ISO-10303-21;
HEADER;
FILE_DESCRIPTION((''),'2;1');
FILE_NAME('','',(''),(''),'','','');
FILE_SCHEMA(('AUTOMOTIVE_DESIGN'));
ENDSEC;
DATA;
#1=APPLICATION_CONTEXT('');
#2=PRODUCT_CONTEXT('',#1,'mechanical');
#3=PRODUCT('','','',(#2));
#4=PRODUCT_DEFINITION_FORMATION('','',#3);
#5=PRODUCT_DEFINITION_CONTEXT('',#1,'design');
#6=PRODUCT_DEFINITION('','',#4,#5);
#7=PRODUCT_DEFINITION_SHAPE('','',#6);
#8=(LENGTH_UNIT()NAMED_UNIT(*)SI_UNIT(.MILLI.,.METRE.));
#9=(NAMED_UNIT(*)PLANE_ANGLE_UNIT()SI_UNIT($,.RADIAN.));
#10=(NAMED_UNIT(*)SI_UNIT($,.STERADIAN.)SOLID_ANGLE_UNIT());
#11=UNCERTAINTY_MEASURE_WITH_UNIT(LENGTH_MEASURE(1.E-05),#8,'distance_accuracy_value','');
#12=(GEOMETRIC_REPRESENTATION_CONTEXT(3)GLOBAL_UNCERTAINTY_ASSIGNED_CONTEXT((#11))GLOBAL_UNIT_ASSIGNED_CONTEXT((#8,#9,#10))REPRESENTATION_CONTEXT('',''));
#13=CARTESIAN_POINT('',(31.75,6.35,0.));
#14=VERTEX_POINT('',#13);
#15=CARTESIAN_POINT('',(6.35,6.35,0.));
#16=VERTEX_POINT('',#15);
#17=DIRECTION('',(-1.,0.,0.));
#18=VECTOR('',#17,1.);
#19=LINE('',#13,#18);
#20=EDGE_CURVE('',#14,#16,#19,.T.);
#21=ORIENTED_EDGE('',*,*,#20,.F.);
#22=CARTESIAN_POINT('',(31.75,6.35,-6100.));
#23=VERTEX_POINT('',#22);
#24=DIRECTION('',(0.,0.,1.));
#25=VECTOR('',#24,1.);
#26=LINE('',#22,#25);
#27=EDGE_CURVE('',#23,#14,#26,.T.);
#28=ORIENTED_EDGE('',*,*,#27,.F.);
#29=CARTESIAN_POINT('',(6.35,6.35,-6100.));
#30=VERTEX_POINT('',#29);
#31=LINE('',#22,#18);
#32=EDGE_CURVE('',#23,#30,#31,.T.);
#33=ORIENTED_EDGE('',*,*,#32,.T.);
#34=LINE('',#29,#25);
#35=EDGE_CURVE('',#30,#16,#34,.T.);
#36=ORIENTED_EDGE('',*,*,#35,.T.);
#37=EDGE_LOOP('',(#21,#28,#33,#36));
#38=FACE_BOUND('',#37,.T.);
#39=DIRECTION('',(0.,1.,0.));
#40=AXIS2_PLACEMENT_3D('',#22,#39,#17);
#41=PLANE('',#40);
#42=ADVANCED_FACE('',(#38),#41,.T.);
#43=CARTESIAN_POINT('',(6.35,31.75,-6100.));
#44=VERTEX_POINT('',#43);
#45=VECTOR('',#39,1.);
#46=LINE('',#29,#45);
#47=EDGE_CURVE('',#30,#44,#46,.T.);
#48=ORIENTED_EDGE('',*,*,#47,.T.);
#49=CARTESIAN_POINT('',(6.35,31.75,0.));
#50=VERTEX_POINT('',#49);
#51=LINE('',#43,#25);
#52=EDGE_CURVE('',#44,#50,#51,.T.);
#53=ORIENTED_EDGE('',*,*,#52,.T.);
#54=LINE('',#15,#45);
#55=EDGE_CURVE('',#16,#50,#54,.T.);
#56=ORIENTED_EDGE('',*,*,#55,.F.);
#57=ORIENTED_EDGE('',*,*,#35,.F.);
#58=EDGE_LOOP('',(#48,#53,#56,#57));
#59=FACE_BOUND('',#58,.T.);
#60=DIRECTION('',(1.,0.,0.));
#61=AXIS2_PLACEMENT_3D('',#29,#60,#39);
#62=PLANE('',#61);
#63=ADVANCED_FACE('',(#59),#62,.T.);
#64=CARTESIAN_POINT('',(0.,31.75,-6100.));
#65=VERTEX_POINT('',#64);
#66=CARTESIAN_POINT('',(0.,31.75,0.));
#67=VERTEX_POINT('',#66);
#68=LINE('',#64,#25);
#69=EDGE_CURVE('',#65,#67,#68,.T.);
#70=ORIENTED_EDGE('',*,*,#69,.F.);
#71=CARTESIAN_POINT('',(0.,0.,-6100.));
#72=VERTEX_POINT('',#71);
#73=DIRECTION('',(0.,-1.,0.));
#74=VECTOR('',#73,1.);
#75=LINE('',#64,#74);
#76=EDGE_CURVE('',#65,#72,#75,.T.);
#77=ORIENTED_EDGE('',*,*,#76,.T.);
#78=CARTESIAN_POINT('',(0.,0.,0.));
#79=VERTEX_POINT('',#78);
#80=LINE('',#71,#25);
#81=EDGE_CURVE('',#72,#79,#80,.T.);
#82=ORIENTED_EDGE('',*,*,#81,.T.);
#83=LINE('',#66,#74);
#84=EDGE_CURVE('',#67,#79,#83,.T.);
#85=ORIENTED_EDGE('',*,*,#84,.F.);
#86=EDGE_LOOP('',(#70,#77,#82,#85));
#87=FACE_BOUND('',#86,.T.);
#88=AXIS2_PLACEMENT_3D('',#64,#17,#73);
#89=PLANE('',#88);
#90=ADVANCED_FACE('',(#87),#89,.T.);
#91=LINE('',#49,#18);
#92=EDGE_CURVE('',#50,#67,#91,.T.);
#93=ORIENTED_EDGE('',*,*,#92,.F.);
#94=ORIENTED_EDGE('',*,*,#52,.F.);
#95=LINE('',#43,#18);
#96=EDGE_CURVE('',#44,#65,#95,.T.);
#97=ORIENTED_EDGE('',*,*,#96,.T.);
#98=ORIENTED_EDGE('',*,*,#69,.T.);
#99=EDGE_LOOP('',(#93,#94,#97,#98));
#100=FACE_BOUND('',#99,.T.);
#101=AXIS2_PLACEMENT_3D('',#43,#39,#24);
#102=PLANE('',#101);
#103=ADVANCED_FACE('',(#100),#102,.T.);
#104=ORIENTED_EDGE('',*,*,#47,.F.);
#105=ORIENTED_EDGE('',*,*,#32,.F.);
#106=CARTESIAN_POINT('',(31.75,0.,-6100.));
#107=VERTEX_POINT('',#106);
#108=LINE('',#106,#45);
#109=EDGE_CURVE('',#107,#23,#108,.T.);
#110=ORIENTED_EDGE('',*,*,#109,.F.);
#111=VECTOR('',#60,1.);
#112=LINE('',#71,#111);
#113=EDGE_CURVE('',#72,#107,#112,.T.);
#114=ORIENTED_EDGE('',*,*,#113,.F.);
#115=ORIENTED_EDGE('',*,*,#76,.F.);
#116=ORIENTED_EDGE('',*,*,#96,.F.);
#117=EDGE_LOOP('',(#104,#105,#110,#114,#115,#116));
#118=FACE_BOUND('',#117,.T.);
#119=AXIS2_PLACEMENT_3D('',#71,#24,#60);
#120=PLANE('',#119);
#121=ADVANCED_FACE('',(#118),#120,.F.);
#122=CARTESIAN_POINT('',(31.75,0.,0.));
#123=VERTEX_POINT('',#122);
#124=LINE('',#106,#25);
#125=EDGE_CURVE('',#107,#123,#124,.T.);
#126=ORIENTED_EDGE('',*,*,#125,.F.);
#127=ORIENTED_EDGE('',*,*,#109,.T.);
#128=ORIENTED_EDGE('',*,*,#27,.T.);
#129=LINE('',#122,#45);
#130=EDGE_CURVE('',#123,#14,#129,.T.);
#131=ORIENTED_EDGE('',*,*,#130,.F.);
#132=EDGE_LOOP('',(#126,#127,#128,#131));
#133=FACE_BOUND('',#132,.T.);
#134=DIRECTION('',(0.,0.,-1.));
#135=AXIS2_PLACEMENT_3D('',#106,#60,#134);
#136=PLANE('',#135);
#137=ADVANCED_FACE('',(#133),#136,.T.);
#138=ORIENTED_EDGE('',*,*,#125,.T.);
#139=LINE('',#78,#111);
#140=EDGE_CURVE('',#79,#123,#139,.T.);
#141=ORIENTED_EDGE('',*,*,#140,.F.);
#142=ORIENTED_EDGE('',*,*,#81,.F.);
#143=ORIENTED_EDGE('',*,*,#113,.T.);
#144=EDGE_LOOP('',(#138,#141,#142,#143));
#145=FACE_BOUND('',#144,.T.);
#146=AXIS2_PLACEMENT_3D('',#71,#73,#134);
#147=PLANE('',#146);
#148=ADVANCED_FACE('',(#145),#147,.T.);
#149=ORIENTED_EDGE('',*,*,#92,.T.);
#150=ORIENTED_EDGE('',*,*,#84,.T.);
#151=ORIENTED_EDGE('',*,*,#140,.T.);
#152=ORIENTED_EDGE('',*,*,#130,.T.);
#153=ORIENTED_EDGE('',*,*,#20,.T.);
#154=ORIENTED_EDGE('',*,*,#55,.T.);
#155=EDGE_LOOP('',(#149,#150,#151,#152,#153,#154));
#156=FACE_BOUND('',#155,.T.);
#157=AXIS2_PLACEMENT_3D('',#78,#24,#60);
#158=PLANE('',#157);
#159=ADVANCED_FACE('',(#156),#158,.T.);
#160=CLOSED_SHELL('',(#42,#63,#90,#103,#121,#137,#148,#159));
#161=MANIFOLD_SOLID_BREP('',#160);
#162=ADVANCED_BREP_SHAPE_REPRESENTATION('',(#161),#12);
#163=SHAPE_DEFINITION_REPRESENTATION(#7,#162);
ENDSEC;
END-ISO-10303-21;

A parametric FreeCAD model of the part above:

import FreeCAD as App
import Part
import Sketcher
Q = App.Units.Quantity

doc = App.newDocument("Part")
params = doc.addObject("Spreadsheet::Sheet", "Params")
for row, (alias, value) in enumerate([
    ("sketch1_width", "1 in"),
    ("sketch1_width2", "1.25 in"),
    ("pad1_length", "6100 mm"),
], start=1):
    params.set(f"A{row}", alias)
    params.set(f"B{row}", "=" + value)
    params.setAlias(f"B{row}", alias)

body = doc.addObject("PartDesign::Body", "Body")

# Sketch on XY plane
sketch1 = body.newObject("Sketcher::SketchObject", "Sketch")
sketch1.AttachmentSupport = (doc.getObject("XY_Plane"), [""])
sketch1.MapMode = "FlatFace"
sketch1.addGeometry([
    Part.LineSegment(App.Vector(0, 31.75, 0), App.Vector(0, 0, 0)),  # 0
    Part.LineSegment(App.Vector(0, 0, 0), App.Vector(31.75, 0, 0)),  # 1
    Part.LineSegment(App.Vector(31.75, 0, 0), App.Vector(31.75, 6.35, 0)),  # 2
    Part.LineSegment(App.Vector(31.75, 6.35, 0), App.Vector(6.35, 6.35, 0)),  # 3
    Part.LineSegment(App.Vector(6.35, 6.35, 0), App.Vector(6.35, 31.75, 0)),  # 4
    Part.LineSegment(App.Vector(6.35, 31.75, 0), App.Vector(0, 31.75, 0)),  # 5
], False)
sketch1.addConstraint([
    Sketcher.Constraint("Coincident", 0, 2, 1, 1),
    Sketcher.Constraint("Coincident", 1, 2, 2, 1),
    Sketcher.Constraint("Coincident", 2, 2, 3, 1),
    Sketcher.Constraint("Coincident", 3, 2, 4, 1),
    Sketcher.Constraint("Coincident", 4, 2, 5, 1),
    Sketcher.Constraint("Coincident", 5, 2, 0, 1),
    Sketcher.Constraint("Vertical", 0),
    Sketcher.Constraint("Horizontal", 1),
    Sketcher.Constraint("Vertical", 2),
    Sketcher.Constraint("Horizontal", 3),
    Sketcher.Constraint("Vertical", 4),
    Sketcher.Constraint("Horizontal", 5),
    Sketcher.Constraint("Coincident", 0, 2, -1, 1),
    Sketcher.Constraint("Equal", 1, 0),
    Sketcher.Constraint("Equal", 5, 2),
    Sketcher.Constraint("DistanceX", 3, 2, 3, 1, Q("1 in")),
    Sketcher.Constraint("DistanceX", 1, 1, 1, 2, Q("1.25 in")),
])
sketch1.setExpression("Constraints[15]", "Params.sketch1_width")
sketch1.setExpression("Constraints[16]", "Params.sketch1_width2")
pad1 = body.newObject("PartDesign::Pad", "Pad")
pad1.Profile = sketch1
pad1.setExpression("Length", "Params.pad1_length")
pad1.Reversed = True

doc.recompute()
